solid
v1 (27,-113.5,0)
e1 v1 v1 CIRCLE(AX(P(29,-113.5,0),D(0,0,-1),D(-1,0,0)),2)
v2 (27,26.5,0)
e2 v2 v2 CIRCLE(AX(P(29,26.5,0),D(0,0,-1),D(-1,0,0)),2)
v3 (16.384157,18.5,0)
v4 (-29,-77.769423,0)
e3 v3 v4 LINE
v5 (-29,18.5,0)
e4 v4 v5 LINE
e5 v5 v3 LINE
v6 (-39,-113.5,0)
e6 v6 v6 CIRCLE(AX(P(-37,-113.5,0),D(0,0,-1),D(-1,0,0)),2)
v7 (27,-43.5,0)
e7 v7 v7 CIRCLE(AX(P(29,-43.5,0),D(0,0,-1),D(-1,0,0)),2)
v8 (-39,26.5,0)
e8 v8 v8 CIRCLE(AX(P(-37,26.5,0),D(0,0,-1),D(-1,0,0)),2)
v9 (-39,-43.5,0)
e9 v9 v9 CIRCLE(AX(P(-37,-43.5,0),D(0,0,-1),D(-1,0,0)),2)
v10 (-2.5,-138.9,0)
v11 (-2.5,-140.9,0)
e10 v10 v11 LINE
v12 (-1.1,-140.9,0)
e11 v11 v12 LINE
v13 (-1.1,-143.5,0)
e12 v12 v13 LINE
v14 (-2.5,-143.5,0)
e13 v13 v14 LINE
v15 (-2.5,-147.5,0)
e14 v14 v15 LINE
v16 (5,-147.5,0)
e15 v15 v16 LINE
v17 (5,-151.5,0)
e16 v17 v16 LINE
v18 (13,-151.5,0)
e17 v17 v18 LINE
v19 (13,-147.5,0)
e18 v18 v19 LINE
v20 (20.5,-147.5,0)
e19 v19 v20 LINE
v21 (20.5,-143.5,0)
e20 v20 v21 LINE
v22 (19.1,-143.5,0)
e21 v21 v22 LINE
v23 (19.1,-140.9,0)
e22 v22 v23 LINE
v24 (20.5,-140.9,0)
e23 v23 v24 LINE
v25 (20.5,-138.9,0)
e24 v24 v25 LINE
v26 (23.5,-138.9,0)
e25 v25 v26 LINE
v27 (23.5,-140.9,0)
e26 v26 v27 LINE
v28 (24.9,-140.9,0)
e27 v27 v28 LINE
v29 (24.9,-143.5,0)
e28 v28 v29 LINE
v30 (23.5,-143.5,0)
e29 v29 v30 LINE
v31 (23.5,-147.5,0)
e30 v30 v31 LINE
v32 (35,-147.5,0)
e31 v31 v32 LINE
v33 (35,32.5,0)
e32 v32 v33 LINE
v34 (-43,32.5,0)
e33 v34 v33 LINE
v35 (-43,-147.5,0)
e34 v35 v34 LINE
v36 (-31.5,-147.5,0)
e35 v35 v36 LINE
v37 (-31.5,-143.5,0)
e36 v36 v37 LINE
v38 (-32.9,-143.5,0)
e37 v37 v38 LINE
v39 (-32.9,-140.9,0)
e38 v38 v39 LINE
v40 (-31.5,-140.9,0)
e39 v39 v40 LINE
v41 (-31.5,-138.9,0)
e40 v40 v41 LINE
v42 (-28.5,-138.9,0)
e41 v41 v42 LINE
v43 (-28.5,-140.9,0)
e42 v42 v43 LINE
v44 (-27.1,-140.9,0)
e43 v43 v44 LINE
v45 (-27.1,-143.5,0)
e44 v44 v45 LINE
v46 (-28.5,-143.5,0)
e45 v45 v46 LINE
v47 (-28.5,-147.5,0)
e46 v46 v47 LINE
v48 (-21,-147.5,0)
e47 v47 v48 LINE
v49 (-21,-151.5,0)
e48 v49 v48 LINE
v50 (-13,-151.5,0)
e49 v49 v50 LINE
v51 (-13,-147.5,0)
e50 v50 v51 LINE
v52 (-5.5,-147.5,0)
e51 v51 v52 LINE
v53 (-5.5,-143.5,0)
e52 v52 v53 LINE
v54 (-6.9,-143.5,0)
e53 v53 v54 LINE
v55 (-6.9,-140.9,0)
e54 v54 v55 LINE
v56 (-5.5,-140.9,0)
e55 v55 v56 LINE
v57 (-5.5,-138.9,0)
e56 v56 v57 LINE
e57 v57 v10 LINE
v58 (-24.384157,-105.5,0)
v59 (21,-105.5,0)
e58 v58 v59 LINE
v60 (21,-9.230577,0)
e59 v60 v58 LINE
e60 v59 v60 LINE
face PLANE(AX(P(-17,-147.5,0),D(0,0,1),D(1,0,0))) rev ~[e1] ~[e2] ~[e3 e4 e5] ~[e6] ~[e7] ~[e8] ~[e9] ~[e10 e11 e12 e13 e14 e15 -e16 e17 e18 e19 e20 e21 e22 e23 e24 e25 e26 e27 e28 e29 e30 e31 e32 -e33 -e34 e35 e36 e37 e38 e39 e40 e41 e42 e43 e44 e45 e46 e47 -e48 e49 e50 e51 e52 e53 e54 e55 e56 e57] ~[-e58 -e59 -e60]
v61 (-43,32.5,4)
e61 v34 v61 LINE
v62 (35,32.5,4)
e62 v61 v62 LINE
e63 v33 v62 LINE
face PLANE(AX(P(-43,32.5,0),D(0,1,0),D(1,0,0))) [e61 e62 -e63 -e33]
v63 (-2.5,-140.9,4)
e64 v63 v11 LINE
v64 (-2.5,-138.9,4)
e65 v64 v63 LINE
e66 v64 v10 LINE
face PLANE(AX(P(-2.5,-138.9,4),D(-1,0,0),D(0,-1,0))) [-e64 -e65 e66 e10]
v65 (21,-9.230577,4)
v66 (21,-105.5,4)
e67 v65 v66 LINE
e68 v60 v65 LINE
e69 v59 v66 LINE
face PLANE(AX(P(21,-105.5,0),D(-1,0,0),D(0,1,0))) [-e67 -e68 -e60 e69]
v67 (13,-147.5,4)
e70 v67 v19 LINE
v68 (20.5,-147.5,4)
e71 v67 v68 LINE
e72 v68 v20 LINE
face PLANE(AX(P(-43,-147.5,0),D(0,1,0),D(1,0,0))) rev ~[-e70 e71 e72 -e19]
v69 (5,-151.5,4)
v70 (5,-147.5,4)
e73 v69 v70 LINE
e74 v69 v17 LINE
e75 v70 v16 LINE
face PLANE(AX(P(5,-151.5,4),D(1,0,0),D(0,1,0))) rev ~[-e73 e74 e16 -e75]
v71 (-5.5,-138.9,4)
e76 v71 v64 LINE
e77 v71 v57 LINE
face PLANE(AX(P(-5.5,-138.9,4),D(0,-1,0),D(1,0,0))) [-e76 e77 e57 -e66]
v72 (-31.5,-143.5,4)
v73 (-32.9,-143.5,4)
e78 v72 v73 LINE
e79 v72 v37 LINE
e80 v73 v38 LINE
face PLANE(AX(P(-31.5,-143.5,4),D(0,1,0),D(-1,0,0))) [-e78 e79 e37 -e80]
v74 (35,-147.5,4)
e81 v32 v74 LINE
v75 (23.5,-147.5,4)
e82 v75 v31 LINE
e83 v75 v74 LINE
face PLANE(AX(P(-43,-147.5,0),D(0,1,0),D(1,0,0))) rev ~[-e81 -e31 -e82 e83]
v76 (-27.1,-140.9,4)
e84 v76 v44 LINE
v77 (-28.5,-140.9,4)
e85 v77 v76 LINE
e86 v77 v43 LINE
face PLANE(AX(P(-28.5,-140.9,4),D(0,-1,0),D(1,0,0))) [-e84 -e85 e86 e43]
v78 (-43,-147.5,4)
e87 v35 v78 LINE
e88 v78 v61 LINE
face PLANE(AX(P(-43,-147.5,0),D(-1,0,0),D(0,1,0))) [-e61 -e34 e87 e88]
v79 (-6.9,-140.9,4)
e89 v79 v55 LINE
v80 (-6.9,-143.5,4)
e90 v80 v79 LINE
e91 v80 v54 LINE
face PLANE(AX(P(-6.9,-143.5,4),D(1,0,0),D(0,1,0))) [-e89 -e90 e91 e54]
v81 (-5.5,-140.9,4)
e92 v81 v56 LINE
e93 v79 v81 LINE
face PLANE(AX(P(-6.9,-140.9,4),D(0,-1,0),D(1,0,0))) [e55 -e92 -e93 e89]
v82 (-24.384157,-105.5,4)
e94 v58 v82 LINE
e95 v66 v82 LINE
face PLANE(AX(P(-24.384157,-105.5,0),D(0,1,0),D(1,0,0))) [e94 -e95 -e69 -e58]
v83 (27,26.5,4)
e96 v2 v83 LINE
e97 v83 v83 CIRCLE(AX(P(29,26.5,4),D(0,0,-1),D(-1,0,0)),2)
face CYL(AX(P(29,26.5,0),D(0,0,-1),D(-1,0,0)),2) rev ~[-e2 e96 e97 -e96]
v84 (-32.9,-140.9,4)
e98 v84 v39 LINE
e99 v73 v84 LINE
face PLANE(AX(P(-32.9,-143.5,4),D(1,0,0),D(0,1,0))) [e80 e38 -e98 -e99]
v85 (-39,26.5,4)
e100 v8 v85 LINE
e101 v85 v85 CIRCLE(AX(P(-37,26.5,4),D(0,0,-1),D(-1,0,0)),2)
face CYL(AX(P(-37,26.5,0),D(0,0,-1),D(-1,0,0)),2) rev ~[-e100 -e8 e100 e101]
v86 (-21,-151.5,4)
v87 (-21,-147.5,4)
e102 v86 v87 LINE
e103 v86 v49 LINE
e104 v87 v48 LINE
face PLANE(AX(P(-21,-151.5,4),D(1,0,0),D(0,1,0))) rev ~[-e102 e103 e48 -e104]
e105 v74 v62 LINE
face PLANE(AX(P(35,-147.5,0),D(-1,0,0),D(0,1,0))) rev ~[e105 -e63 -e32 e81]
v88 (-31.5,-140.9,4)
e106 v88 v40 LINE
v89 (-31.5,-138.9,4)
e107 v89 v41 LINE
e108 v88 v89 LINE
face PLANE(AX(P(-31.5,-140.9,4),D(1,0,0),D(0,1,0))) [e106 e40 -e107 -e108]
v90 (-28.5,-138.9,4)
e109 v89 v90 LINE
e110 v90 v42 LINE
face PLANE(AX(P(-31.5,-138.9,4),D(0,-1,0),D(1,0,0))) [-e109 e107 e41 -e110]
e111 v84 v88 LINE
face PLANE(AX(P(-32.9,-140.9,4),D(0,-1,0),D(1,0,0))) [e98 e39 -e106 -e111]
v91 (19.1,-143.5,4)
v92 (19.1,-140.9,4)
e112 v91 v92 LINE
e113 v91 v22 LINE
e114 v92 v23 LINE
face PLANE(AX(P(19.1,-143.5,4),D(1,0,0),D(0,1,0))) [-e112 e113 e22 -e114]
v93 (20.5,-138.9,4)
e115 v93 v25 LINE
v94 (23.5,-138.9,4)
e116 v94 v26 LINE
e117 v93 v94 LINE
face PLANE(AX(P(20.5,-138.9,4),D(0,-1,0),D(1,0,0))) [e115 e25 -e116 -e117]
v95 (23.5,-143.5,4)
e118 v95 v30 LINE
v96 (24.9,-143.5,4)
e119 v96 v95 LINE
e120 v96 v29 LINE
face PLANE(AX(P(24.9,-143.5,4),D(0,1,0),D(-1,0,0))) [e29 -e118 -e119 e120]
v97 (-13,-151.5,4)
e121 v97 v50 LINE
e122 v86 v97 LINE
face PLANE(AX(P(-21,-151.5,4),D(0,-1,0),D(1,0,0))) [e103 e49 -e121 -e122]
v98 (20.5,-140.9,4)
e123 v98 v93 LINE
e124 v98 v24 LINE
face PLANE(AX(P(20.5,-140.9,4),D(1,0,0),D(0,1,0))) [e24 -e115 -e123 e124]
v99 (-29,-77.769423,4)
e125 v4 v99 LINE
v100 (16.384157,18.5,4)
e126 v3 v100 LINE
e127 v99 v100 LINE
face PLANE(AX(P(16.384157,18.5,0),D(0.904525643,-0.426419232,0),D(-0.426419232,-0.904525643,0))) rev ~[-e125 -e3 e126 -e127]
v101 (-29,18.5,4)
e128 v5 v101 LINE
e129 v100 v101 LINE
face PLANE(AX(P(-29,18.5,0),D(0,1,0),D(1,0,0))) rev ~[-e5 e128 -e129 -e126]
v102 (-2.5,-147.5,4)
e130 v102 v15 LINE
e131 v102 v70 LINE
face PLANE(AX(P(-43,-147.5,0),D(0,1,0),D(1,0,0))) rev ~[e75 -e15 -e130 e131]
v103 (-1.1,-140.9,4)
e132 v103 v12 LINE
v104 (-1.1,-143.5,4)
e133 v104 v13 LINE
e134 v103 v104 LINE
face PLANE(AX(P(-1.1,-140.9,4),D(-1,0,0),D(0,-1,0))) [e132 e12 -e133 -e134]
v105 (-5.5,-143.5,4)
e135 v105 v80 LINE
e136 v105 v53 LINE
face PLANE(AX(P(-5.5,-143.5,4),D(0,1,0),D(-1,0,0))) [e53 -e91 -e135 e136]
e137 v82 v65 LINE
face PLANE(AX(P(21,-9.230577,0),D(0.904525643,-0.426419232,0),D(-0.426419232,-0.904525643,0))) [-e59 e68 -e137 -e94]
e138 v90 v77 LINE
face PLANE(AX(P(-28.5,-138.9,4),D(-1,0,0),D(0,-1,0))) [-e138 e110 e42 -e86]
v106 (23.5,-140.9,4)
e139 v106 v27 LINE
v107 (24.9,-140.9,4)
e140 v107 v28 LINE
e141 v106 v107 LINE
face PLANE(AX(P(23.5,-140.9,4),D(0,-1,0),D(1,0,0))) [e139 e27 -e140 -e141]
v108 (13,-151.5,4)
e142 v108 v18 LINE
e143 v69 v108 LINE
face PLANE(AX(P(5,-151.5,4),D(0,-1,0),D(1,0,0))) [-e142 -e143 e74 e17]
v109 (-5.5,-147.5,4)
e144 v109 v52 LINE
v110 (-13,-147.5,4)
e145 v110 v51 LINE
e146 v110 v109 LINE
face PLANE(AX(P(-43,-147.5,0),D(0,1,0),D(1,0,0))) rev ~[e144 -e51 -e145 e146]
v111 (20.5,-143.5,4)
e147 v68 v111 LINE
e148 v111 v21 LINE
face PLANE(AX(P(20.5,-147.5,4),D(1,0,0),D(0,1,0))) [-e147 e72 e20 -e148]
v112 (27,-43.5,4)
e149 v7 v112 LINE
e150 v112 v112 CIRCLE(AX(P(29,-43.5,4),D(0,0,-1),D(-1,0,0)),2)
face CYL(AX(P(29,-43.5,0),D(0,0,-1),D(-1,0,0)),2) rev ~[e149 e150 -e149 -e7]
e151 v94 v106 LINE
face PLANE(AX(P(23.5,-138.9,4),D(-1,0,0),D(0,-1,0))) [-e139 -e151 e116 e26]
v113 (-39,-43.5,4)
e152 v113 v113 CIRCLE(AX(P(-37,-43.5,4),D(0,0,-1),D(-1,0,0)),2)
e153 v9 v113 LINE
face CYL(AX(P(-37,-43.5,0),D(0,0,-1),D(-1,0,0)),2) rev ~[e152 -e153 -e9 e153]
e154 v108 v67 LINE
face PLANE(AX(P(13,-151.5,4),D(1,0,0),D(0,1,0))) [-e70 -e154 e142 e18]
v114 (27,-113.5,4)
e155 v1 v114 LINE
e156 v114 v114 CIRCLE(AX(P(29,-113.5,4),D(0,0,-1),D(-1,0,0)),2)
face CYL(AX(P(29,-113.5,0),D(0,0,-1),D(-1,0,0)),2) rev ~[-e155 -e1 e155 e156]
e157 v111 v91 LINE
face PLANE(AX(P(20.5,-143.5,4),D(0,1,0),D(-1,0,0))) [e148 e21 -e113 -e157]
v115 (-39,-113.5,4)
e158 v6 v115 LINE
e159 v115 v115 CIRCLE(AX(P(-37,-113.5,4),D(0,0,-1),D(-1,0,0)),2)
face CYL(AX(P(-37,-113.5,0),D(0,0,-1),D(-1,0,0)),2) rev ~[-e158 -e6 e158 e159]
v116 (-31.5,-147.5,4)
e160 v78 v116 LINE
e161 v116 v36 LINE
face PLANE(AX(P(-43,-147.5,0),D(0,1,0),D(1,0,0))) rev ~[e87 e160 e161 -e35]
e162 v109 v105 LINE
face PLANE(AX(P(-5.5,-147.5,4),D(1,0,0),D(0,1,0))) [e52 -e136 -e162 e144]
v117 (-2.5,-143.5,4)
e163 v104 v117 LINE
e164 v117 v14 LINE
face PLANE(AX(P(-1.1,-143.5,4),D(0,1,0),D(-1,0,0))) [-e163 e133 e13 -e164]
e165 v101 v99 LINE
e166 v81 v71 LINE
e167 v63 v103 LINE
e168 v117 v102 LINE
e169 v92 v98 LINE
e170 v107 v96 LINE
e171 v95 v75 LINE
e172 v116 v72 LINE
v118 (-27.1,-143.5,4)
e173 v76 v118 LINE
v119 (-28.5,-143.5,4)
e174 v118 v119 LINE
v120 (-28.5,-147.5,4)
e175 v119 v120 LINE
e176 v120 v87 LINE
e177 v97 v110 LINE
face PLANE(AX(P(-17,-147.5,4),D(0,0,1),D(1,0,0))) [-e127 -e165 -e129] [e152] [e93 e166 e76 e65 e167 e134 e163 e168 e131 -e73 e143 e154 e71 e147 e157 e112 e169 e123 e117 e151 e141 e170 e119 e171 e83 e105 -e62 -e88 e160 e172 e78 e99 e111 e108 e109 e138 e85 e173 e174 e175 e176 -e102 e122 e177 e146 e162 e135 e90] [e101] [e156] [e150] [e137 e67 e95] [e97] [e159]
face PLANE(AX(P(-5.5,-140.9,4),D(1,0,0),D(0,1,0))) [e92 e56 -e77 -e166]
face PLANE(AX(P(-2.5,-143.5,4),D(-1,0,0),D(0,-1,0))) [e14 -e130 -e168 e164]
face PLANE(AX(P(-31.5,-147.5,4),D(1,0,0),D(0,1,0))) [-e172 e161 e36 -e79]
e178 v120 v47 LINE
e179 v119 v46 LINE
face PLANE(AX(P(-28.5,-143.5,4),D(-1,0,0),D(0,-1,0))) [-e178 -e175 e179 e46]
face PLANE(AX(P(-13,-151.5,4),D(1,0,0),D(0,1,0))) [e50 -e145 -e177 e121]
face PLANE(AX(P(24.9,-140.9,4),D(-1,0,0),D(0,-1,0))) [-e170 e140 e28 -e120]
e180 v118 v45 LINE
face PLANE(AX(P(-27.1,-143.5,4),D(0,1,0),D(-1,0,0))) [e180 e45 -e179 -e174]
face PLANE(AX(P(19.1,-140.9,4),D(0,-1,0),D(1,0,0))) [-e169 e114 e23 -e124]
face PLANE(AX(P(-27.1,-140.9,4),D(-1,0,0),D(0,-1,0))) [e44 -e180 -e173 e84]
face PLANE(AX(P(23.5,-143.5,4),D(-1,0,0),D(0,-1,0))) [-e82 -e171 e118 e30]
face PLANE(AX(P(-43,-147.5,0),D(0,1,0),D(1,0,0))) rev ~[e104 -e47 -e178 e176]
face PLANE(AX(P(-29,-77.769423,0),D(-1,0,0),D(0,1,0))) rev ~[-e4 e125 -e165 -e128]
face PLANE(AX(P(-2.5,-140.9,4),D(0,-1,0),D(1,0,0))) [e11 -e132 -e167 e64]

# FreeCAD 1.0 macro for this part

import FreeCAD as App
import Part
import Sketcher

V = App.Vector


def add_polygon(sketch, points):
    """Adds a closed chain of lines whose ends are joined by coincident constraints."""
    first, n = sketch.GeometryCount, len(points)
    for a, b in zip(points, points[1:] + points[:1]):
        sketch.addGeometry(Part.LineSegment(App.Vector(*a, 0), App.Vector(*b, 0)), False)
    for i in range(n):
        sketch.addConstraint(Sketcher.Constraint("Coincident", first + i, 2, first + (i + 1) % n, 1))

doc = App.newDocument("Part")
body = doc.addObject("PartDesign::Body", "Body")

# Sketch on XY plane
sketch1 = body.newObject("Sketcher::SketchObject", "Sketch")
sketch1.AttachmentSupport = (doc.getObject("XY_Plane"), [""])
sketch1.MapMode = "FlatFace"
add_polygon(sketch1, [(-43, 32), (-43, -148), (35, -148), (35, 32)])  # lines 0-3
sketch1.addConstraint([
    Sketcher.Constraint("Vertical", 0),
    Sketcher.Constraint("Horizontal", 1),
    Sketcher.Constraint("Vertical", 2),
    Sketcher.Constraint("Horizontal", 3),
    Sketcher.Constraint("DistanceX", 1, 1, 1, 2, 78.0),
    Sketcher.Constraint("DistanceY", 0, 2, 0, 1, 180.0),
    Sketcher.Constraint("DistanceX", 0, 2, -1, 1, 43.0),
    Sketcher.Constraint("DistanceY", 0, 2, -1, 1, 147.5),
])
pad1 = body.newObject("PartDesign::Pad", "Pad")
pad1.Profile = sketch1
pad1.Length = 4

# Sketch on XY plane
sketch2 = body.newObject("Sketcher::SketchObject", "Sketch001")
sketch2.AttachmentSupport = (doc.getObject("XY_Plane"), [""])
sketch2.MapMode = "FlatFace"
sketch2.AttachmentOffset = App.Placement(V(0, 0, 4), App.Rotation())
add_polygon(sketch2, [(-31.5, -143.5), (-31.5, -147.5), (-28.5, -147.5), (-28.5, -143.5), (-27.1, -143.5), (-27.1, -140.9), (-28.5, -140.9), (-28.5, -138.9), (-31.5, -138.9), (-31.5, -140.9), (-32.9, -140.9), (-32.9, -143.5)])  # lines 0-11
add_polygon(sketch2, [(20.5, -147.5), (23.5, -147.5), (23.5, -143.5), (24.9, -143.5), (24.9, -140.9), (23.5, -140.9), (23.5, -138.9), (20.5, -138.9), (20.5, -140.9), (19.1, -140.9), (19.1, -143.5), (20.5, -143.5)])  # lines 12-23
add_polygon(sketch2, [(-5.5, -143.5), (-5.5, -147.5), (-2.5, -147.5), (-2.5, -143.5), (-1.1, -143.5), (-1.1, -140.9), (-2.5, -140.9), (-2.5, -138.9), (-5.5, -138.9), (-5.5, -140.9), (-6.9, -140.9), (-6.9, -143.5)])  # lines 24-35
sketch2.addConstraint([
    Sketcher.Constraint("Vertical", 0),
    Sketcher.Constraint("Horizontal", 1),
    Sketcher.Constraint("Vertical", 2),
    Sketcher.Constraint("Horizontal", 3),
    Sketcher.Constraint("Vertical", 4),
    Sketcher.Constraint("Horizontal", 5),
    Sketcher.Constraint("Vertical", 6),
    Sketcher.Constraint("Horizontal", 7),
    Sketcher.Constraint("Vertical", 8),
    Sketcher.Constraint("Horizontal", 9),
    Sketcher.Constraint("Vertical", 10),
    Sketcher.Constraint("Horizontal", 11),
    Sketcher.Constraint("Horizontal", 12),
    Sketcher.Constraint("Vertical", 13),
    Sketcher.Constraint("Horizontal", 14),
    Sketcher.Constraint("Vertical", 15),
    Sketcher.Constraint("Horizontal", 16),
    Sketcher.Constraint("Vertical", 17),
    Sketcher.Constraint("Horizontal", 18),
    Sketcher.Constraint("Vertical", 19),
    Sketcher.Constraint("Horizontal", 20),
    Sketcher.Constraint("Vertical", 21),
    Sketcher.Constraint("Horizontal", 22),
    Sketcher.Constraint("Vertical", 23),
    Sketcher.Constraint("Vertical", 24),
    Sketcher.Constraint("Horizontal", 25),
    Sketcher.Constraint("Vertical", 26),
    Sketcher.Constraint("Horizontal", 27),
    Sketcher.Constraint("Vertical", 28),
    Sketcher.Constraint("Horizontal", 29),
    Sketcher.Constraint("Vertical", 30),
    Sketcher.Constraint("Horizontal", 31),
    Sketcher.Constraint("Vertical", 32),
    Sketcher.Constraint("Horizontal", 33),
    Sketcher.Constraint("Vertical", 34),
    Sketcher.Constraint("Horizontal", 35),
    Sketcher.Constraint("Horizontal", 5, 2, 8, 2),
    Sketcher.Constraint("Horizontal", 3, 2, 10, 2),
    Sketcher.Constraint("Horizontal", 1, 2, 12, 2),
    Sketcher.Constraint("Horizontal", 11, 2, 13, 2),
    Sketcher.Constraint("Horizontal", 9, 2, 15, 2),
    Sketcher.Constraint("Horizontal", 7, 2, 17, 2),
    Sketcher.Constraint("Horizontal", 16, 2, 19, 2),
    Sketcher.Constraint("Horizontal", 14, 2, 21, 2),
    Sketcher.Constraint("Horizontal", 23, 2, 24, 2),
    Sketcher.Constraint("Horizontal", 22, 2, 26, 2),
    Sketcher.Constraint("Horizontal", 20, 2, 28, 2),
    Sketcher.Constraint("Horizontal", 18, 2, 30, 2),
    Sketcher.Constraint("Horizontal", 29, 2, 32, 2),
    Sketcher.Constraint("Horizontal", 27, 2, 34, 2),
    Sketcher.Constraint("Vertical", 2, 2, 5, 2),
    Sketcher.Constraint("Vertical", 0, 2, 7, 2),
    Sketcher.Constraint("Vertical", 13, 2, 16, 2),
    Sketcher.Constraint("Vertical", 19, 2, 22, 2),
    Sketcher.Constraint("Vertical", 26, 2, 29, 2),
    Sketcher.Constraint("Vertical", 24, 2, 31, 2),
    Sketcher.Constraint("Equal", 5, 9),
    Sketcher.Constraint("Equal", 7, 12),
    Sketcher.Constraint("Equal", 11, 14),
    Sketcher.Constraint("Equal", 16, 20),
    Sketcher.Constraint("Equal", 18, 25),
    Sketcher.Constraint("Equal", 22, 27),
    Sketcher.Constraint("Equal", 29, 33),
    Sketcher.Constraint("DistanceX", 1, 1, 1, 2, 3.0),
    Sketcher.Constraint("DistanceY", 0, 2, 0, 1, 4.0),
    Sketcher.Constraint("DistanceY", 6, 1, 6, 2, 2.0),
    Sketcher.Constraint("DistanceX", 3, 1, 3, 2, 1.4),
    Sketcher.Constraint("DistanceY", 4, 1, 4, 2, 2.6),
    Sketcher.Constraint("DistanceX", 1, 2, 12, 2, 52.0),
    Sketcher.Constraint("DistanceX", 1, 2, 24, 2, 23.0),
    Sketcher.Constraint("DistanceX", 0, 2, -1, 1, 31.5),
    Sketcher.Constraint("DistanceY", 0, 2, -1, 1, 147.5),
])
pocket1 = body.newObject("PartDesign::Pocket", "Pocket")
pocket1.Profile = sketch2
pocket1.Length = 4

# Sketch on XY plane
sketch3 = body.newObject("Sketcher::SketchObject", "Sketch002")
sketch3.AttachmentSupport = (doc.getObject("XY_Plane"), [""])
sketch3.MapMode = "FlatFace"
sketch3.AttachmentOffset = App.Placement(V(0, 0, 4), App.Rotation())
add_polygon(sketch3, [(-21, -144), (-21, -152), (-13, -152), (-13, -144)])  # lines 0-3
add_polygon(sketch3, [(5, -144), (5, -152), (13, -152), (13, -144)])  # lines 4-7
sketch3.addConstraint([
    Sketcher.Constraint("Vertical", 0),
    Sketcher.Constraint("Horizontal", 1),
    Sketcher.Constraint("Vertical", 2),
    Sketcher.Constraint("Horizontal", 3),
    Sketcher.Constraint("Vertical", 4),
    Sketcher.Constraint("Horizontal", 5),
    Sketcher.Constraint("Vertical", 6),
    Sketcher.Constraint("Horizontal", 7),
    Sketcher.Constraint("Symmetric", 1, 2, 5, 2, -2),
    Sketcher.Constraint("Horizontal", 3, 2, 6, 2),
    Sketcher.Constraint("Equal", 3, 5),
    Sketcher.Constraint("Equal", 7, 0),
    Sketcher.Constraint("DistanceX", 1, 1, 1, 2, 8.0),
    Sketcher.Constraint("DistanceX", 0, 2, -1, 1, 21.0),
    Sketcher.Constraint("DistanceY", 0, 2, -1, 1, 151.5),
])
pad2 = body.newObject("PartDesign::Pad", "Pad001")
pad2.Profile = sketch3
pad2.Length = 4
pad2.Reversed = True

# Sketch on XY plane
sketch4 = body.newObject("Sketcher::SketchObject", "Sketch003")
sketch4.AttachmentSupport = (doc.getObject("XY_Plane"), [""])
sketch4.MapMode = "FlatFace"
sketch4.addGeometry(Part.Circle(V(29, 26.5, 0), V(0, 0, 1), 2), False)  # 0
sketch4.addGeometry(Part.Circle(V(29, -43.5, 0), V(0, 0, 1), 2), False)  # 1
sketch4.addGeometry(Part.Circle(V(29, -113.5, 0), V(0, 0, 1), 2), False)  # 2
sketch4.addGeometry(Part.Circle(V(-37, -43.5, 0), V(0, 0, 1), 2), False)  # 3
sketch4.addGeometry(Part.Circle(V(-37, -113.5, 0), V(0, 0, 1), 2), False)  # 4
sketch4.addGeometry(Part.Circle(V(-37, 26.5, 0), V(0, 0, 1), 2), False)  # 5
add_polygon(sketch4, [(-29, 18.5), (16.4, 18.5), (-29, -77.8)])  # lines 6-8
add_polygon(sketch4, [(21, -9.2), (21, -105.5), (-24.4, -105.5)])  # lines 9-11
sketch4.addConstraint([
    Sketcher.Constraint("Horizontal", 6),
    Sketcher.Constraint("Vertical", 8),
    Sketcher.Constraint("Vertical", 9),
    Sketcher.Constraint("Horizontal", 10),
    Sketcher.Constraint("Equal", 0, 1),
    Sketcher.Constraint("Equal", 1, 2),
    Sketcher.Constraint("Equal", 2, 3),
    Sketcher.Constraint("Equal", 3, 4),
    Sketcher.Constraint("Equal", 4, 5),
    Sketcher.Constraint("Parallel", 7, 11),
    Sketcher.Constraint("Horizontal", 1, 3, 3, 3),
    Sketcher.Constraint("Horizontal", 2, 3, 4, 3),
    Sketcher.Constraint("Horizontal", 0, 3, 5, 3),
    Sketcher.Constraint("Vertical", 0, 3, 1, 3),
    Sketcher.Constraint("Vertical", 1, 3, 2, 3),
    Sketcher.Constraint("Vertical", 3, 3, 4, 3),
    Sketcher.Constraint("Vertical", 4, 3, 5, 3),
    Sketcher.Constraint("Equal", 6, 10),
    Sketcher.Constraint("Diameter", 0, 4.0),
    Sketcher.Constraint("DistanceX", -1, 1, 0, 3, 29.0),
    Sketcher.Constraint("DistanceX", 3, 3, -1, 1, 37.0),
    Sketcher.Constraint("DistanceX", 7, 2, -1, 1, 29.0),
    Sketcher.Constraint("DistanceX", -1, 1, 9, 2, 21.0),
    Sketcher.Constraint("DistanceY", 1, 3, 0, 3, 70.0),
    Sketcher.Constraint("DistanceY", 2, 3, 1, 3, 70.0),
    Sketcher.Constraint("DistanceY", 6, 2, 0, 3, 8.0),
    Sketcher.Constraint("DistanceY", 2, 3, 9, 2, 8.0),
    Sketcher.Constraint("DistanceY", -1, 1, 0, 3, 26.5),
    Sketcher.Constraint("Distance", 7, 106.430839),
    Sketcher.Constraint("DistanceX", 6, 1, 6, 2, 45.384157),
])
pocket2 = body.newObject("PartDesign::Pocket", "Pocket001")
pocket2.Profile = sketch4
pocket2.Length = 10
pocket2.Reversed = True

doc.recompute()
